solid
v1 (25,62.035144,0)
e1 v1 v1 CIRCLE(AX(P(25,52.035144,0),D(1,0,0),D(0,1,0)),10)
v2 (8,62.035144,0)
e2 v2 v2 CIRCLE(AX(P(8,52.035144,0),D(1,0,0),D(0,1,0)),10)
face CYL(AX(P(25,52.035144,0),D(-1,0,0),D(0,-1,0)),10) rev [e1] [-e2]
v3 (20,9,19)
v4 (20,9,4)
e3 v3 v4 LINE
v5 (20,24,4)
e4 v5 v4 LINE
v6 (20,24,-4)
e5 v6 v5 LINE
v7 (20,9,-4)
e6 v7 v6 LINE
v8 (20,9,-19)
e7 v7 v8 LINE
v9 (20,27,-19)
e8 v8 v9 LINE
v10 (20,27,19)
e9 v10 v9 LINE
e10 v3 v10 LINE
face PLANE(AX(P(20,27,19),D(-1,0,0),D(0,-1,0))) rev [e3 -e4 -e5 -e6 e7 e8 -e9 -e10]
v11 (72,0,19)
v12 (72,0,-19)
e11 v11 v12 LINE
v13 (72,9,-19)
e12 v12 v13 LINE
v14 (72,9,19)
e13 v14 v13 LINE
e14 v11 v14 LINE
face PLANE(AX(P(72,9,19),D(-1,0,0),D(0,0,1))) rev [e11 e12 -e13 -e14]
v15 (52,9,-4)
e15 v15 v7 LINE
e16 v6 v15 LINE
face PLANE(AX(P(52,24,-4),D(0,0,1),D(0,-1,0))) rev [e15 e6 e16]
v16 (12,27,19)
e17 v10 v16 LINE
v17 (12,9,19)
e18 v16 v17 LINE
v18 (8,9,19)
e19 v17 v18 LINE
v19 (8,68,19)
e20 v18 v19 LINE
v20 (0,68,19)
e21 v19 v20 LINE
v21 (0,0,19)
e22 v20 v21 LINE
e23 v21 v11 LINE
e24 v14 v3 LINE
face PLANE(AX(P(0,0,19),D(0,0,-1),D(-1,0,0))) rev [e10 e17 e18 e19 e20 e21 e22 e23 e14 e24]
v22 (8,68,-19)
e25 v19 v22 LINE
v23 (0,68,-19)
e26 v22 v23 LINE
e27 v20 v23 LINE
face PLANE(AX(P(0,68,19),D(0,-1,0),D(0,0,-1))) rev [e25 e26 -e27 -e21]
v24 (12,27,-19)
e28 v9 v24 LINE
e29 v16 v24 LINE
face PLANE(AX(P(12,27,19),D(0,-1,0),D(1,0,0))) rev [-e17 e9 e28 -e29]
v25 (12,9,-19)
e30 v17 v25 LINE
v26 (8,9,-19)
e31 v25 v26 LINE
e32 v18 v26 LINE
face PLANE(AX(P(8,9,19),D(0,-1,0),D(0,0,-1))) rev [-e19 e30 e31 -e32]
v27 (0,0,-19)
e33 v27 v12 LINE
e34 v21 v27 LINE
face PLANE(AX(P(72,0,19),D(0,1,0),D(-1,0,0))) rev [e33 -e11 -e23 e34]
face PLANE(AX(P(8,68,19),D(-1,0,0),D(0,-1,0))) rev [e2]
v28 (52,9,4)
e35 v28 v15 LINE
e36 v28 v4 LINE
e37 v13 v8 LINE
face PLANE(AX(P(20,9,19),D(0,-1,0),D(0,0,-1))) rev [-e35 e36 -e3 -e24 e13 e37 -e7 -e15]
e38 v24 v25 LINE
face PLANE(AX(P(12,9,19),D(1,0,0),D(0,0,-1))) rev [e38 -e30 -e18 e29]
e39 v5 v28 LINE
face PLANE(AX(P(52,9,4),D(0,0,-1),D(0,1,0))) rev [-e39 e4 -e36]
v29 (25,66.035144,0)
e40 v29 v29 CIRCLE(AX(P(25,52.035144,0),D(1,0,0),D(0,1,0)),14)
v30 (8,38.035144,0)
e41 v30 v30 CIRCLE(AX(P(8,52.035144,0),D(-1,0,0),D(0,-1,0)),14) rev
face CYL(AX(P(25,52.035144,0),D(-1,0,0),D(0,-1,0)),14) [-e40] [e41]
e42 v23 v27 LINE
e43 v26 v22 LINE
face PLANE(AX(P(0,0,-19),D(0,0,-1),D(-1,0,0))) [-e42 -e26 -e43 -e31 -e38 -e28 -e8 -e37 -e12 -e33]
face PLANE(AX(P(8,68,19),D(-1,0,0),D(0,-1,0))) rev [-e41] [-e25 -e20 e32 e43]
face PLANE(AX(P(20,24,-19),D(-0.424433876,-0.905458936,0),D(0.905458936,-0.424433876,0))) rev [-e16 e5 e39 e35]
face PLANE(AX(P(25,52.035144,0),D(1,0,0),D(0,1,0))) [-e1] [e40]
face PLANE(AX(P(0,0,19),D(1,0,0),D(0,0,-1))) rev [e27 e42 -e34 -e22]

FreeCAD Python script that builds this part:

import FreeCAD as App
import Part
import Sketcher

V = App.Vector
Q = App.Units.Quantity


def add_polygon(sketch, points):
    """Adds a closed chain of lines whose ends are joined by coincident constraints."""
    first, n = sketch.GeometryCount, len(points)
    for a, b in zip(points, points[1:] + points[:1]):
        sketch.addGeometry(Part.LineSegment(App.Vector(*a, 0), App.Vector(*b, 0)), False)
    for i in range(n):
        sketch.addConstraint(Sketcher.Constraint("Coincident", first + i, 2, first + (i + 1) % n, 1))

doc = App.newDocument("Part")
params = doc.addObject("Spreadsheet::Sheet", "Params")
for row, (alias, value) in enumerate([
    ("sketch1_width", "72 mm"),
    ("sketch1_width2", "52 mm"),
    ("sketch1_width3", "8 mm"),
    ("sketch1_height", "68 mm"),
    ("sketch1_height2", "9 mm"),
    ("pad1_length", "38 mm"),
    ("sketch2_width", "15 mm"),
    ("sketch2_height", "8 mm"),
    ("pad2_length", "32 mm"),
    ("sketch3_width", "32 mm"),
    ("sketch3_height", "15 mm"),
    ("sketch4_diameter", "28 mm"),
    ("sketch4_diameter2", "20 mm"),
    ("pad3_length", "17 mm"),
], start=1):
    params.set(f"A{row}", alias)
    params.set(f"B{row}", "=" + value)
    params.setAlias(f"B{row}", alias)

body = doc.addObject("PartDesign::Body", "Body")

# Sketch on XY plane
sketch1 = doc.addObject("Sketcher::SketchObject", "Sketch")
body.addObject(sketch1)
sketch1.AttachmentSupport = (doc.XY_Plane, [""])
sketch1.MapMode = "FlatFace"
add_polygon(sketch1, [(0, 68), (0, 0), (72, 0), (72, 9), (20, 9), (20, 27), (12, 27), (12, 9), (8, 9), (8, 68)])  # lines 0-9
sketch1.addConstraint(Sketcher.Constraint("Vertical", 0))
sketch1.addConstraint(Sketcher.Constraint("Horizontal", 1))
sketch1.addConstraint(Sketcher.Constraint("Vertical", 2))
sketch1.addConstraint(Sketcher.Constraint("Horizontal", 3))
sketch1.addConstraint(Sketcher.Constraint("Vertical", 4))
sketch1.addConstraint(Sketcher.Constraint("Horizontal", 5))
sketch1.addConstraint(Sketcher.Constraint("Vertical", 6))
sketch1.addConstraint(Sketcher.Constraint("Horizontal", 7))
sketch1.addConstraint(Sketcher.Constraint("Vertical", 8))
sketch1.addConstraint(Sketcher.Constraint("Horizontal", 9))
sketch1.addConstraint(Sketcher.Constraint("Coincident", 0, 2, -1, 1))
sketch1.addConstraint(Sketcher.Constraint("Horizontal", 3, 2, 6, 2))
sketch1.addConstraint(Sketcher.Constraint("Equal", 5, 9))
sketch1.addConstraint(Sketcher.Constraint("DistanceX", 1, 1, 1, 2, Q("72 mm")))
sketch1.addConstraint(Sketcher.Constraint("DistanceX", 3, 2, 3, 1, Q("52 mm")))
sketch1.addConstraint(Sketcher.Constraint("DistanceX", 5, 2, 5, 1, Q("8 mm")))
sketch1.addConstraint(Sketcher.Constraint("DistanceY", 0, 2, 0, 1, Q("68 mm")))
sketch1.addConstraint(Sketcher.Constraint("DistanceY", 2, 1, 2, 2, Q("9 mm")))
sketch1.addConstraint(Sketcher.Constraint("DistanceY", 4, 1, 4, 2, Q("18 mm")))
sketch1.setExpression("Constraints[23]", "Params.sketch1_width")
sketch1.setExpression("Constraints[24]", "Params.sketch1_width2")
sketch1.setExpression("Constraints[25]", "Params.sketch1_width3")
sketch1.setExpression("Constraints[26]", "Params.sketch1_height")
sketch1.setExpression("Constraints[27]", "Params.sketch1_height2")
pad1 = doc.addObject("PartDesign::Pad", "Pad")
body.addObject(pad1)
pad1.Profile = sketch1
pad1.setExpression("Length", "Params.pad1_length")
pad1.Midplane = True

# Sketch on YZ plane
sketch2 = doc.addObject("Sketcher::SketchObject", "Sketch001")
body.addObject(sketch2)
sketch2.AttachmentSupport = (doc.YZ_Plane, [""])
sketch2.MapMode = "FlatFace"
sketch2.AttachmentOffset = App.Placement(V(0, 0, 20), App.Rotation())
add_polygon(sketch2, [(9, 4), (9, -4), (24, -4), (24, 4)])  # lines 0-3
sketch2.addConstraint(Sketcher.Constraint("Vertical", 0))
sketch2.addConstraint(Sketcher.Constraint("Horizontal", 1))
sketch2.addConstraint(Sketcher.Constraint("Vertical", 2))
sketch2.addConstraint(Sketcher.Constraint("Horizontal", 3))
sketch2.addConstraint(Sketcher.Constraint("DistanceX", 1, 1, 1, 2, Q("15 mm")))
sketch2.addConstraint(Sketcher.Constraint("DistanceY", 0, 2, 0, 1, Q("8 mm")))
sketch2.addConstraint(Sketcher.Constraint("DistanceX", -1, 1, 0, 2, Q("9 mm")))
sketch2.addConstraint(Sketcher.Constraint("DistanceY", 0, 2, -1, 1, Q("4 mm")))
sketch2.setExpression("Constraints[8]", "Params.sketch2_width")
sketch2.setExpression("Constraints[9]", "Params.sketch2_height")
pad2 = doc.addObject("PartDesign::Pad", "Pad001")
body.addObject(pad2)
pad2.Profile = sketch2
pad2.setExpression("Length", "Params.pad2_length")

# Sketch on XY plane
sketch3 = doc.addObject("Sketcher::SketchObject", "Sketch002")
body.addObject(sketch3)
sketch3.AttachmentSupport = (doc.XY_Plane, [""])
sketch3.MapMode = "FlatFace"
sketch3.AttachmentOffset = App.Placement(V(0, 0, 4), App.Rotation())
add_polygon(sketch3, [(20, 24), (52, 9), (52, 24)])  # lines 0-2
sketch3.addConstraint(Sketcher.Constraint("Vertical", 1))
sketch3.addConstraint(Sketcher.Constraint("Horizontal", 2))
sketch3.addConstraint(Sketcher.Constraint("DistanceX", 2, 2, 2, 1, Q("32 mm")))
sketch3.addConstraint(Sketcher.Constraint("DistanceY", 1, 1, 1, 2, Q("15 mm")))
sketch3.addConstraint(Sketcher.Constraint("DistanceX", -1, 1, 0, 2, Q("52 mm")))
sketch3.addConstraint(Sketcher.Constraint("DistanceY", -1, 1, 0, 2, Q("9 mm")))
sketch3.setExpression("Constraints[5]", "Params.sketch3_width")
sketch3.setExpression("Constraints[6]", "Params.sketch3_height")
pocket1 = doc.addObject("PartDesign::Pocket", "Pocket")
body.addObject(pocket1)
pocket1.Profile = sketch3
pocket1.Type = "ThroughAll"

# Sketch on YZ plane
sketch4 = doc.addObject("Sketcher::SketchObject", "Sketch003")
body.addObject(sketch4)
sketch4.AttachmentSupport = (doc.YZ_Plane, [""])
sketch4.MapMode = "FlatFace"
sketch4.AttachmentOffset = App.Placement(V(0, 0, 8), App.Rotation())
sketch4.addGeometry(Part.Circle(V(52, 0, 0), V(0, 0, 1), 14), False)
sketch4.addGeometry(Part.Circle(V(52, 0, 0), V(0, 0, 1), 10), False)
sketch4.addConstraint(Sketcher.Constraint("Coincident", 1, 3, 0, 3))
sketch4.addConstraint(Sketcher.Constraint("PointOnObject", 0, 3, -1))
sketch4.addConstraint(Sketcher.Constraint("Diameter", 0, Q("28 mm")))
sketch4.addConstraint(Sketcher.Constraint("Diameter", 1, Q("20 mm")))
sketch4.addConstraint(Sketcher.Constraint("DistanceX", -1, 1, 0, 3, Q("52.035144 mm")))
sketch4.setExpression("Constraints[2]", "Params.sketch4_diameter")
sketch4.setExpression("Constraints[3]", "Params.sketch4_diameter2")
pad3 = doc.addObject("PartDesign::Pad", "Pad002")
body.addObject(pad3)
pad3.Profile = sketch4
pad3.setExpression("Length", "Params.pad3_length")

doc.recompute()
